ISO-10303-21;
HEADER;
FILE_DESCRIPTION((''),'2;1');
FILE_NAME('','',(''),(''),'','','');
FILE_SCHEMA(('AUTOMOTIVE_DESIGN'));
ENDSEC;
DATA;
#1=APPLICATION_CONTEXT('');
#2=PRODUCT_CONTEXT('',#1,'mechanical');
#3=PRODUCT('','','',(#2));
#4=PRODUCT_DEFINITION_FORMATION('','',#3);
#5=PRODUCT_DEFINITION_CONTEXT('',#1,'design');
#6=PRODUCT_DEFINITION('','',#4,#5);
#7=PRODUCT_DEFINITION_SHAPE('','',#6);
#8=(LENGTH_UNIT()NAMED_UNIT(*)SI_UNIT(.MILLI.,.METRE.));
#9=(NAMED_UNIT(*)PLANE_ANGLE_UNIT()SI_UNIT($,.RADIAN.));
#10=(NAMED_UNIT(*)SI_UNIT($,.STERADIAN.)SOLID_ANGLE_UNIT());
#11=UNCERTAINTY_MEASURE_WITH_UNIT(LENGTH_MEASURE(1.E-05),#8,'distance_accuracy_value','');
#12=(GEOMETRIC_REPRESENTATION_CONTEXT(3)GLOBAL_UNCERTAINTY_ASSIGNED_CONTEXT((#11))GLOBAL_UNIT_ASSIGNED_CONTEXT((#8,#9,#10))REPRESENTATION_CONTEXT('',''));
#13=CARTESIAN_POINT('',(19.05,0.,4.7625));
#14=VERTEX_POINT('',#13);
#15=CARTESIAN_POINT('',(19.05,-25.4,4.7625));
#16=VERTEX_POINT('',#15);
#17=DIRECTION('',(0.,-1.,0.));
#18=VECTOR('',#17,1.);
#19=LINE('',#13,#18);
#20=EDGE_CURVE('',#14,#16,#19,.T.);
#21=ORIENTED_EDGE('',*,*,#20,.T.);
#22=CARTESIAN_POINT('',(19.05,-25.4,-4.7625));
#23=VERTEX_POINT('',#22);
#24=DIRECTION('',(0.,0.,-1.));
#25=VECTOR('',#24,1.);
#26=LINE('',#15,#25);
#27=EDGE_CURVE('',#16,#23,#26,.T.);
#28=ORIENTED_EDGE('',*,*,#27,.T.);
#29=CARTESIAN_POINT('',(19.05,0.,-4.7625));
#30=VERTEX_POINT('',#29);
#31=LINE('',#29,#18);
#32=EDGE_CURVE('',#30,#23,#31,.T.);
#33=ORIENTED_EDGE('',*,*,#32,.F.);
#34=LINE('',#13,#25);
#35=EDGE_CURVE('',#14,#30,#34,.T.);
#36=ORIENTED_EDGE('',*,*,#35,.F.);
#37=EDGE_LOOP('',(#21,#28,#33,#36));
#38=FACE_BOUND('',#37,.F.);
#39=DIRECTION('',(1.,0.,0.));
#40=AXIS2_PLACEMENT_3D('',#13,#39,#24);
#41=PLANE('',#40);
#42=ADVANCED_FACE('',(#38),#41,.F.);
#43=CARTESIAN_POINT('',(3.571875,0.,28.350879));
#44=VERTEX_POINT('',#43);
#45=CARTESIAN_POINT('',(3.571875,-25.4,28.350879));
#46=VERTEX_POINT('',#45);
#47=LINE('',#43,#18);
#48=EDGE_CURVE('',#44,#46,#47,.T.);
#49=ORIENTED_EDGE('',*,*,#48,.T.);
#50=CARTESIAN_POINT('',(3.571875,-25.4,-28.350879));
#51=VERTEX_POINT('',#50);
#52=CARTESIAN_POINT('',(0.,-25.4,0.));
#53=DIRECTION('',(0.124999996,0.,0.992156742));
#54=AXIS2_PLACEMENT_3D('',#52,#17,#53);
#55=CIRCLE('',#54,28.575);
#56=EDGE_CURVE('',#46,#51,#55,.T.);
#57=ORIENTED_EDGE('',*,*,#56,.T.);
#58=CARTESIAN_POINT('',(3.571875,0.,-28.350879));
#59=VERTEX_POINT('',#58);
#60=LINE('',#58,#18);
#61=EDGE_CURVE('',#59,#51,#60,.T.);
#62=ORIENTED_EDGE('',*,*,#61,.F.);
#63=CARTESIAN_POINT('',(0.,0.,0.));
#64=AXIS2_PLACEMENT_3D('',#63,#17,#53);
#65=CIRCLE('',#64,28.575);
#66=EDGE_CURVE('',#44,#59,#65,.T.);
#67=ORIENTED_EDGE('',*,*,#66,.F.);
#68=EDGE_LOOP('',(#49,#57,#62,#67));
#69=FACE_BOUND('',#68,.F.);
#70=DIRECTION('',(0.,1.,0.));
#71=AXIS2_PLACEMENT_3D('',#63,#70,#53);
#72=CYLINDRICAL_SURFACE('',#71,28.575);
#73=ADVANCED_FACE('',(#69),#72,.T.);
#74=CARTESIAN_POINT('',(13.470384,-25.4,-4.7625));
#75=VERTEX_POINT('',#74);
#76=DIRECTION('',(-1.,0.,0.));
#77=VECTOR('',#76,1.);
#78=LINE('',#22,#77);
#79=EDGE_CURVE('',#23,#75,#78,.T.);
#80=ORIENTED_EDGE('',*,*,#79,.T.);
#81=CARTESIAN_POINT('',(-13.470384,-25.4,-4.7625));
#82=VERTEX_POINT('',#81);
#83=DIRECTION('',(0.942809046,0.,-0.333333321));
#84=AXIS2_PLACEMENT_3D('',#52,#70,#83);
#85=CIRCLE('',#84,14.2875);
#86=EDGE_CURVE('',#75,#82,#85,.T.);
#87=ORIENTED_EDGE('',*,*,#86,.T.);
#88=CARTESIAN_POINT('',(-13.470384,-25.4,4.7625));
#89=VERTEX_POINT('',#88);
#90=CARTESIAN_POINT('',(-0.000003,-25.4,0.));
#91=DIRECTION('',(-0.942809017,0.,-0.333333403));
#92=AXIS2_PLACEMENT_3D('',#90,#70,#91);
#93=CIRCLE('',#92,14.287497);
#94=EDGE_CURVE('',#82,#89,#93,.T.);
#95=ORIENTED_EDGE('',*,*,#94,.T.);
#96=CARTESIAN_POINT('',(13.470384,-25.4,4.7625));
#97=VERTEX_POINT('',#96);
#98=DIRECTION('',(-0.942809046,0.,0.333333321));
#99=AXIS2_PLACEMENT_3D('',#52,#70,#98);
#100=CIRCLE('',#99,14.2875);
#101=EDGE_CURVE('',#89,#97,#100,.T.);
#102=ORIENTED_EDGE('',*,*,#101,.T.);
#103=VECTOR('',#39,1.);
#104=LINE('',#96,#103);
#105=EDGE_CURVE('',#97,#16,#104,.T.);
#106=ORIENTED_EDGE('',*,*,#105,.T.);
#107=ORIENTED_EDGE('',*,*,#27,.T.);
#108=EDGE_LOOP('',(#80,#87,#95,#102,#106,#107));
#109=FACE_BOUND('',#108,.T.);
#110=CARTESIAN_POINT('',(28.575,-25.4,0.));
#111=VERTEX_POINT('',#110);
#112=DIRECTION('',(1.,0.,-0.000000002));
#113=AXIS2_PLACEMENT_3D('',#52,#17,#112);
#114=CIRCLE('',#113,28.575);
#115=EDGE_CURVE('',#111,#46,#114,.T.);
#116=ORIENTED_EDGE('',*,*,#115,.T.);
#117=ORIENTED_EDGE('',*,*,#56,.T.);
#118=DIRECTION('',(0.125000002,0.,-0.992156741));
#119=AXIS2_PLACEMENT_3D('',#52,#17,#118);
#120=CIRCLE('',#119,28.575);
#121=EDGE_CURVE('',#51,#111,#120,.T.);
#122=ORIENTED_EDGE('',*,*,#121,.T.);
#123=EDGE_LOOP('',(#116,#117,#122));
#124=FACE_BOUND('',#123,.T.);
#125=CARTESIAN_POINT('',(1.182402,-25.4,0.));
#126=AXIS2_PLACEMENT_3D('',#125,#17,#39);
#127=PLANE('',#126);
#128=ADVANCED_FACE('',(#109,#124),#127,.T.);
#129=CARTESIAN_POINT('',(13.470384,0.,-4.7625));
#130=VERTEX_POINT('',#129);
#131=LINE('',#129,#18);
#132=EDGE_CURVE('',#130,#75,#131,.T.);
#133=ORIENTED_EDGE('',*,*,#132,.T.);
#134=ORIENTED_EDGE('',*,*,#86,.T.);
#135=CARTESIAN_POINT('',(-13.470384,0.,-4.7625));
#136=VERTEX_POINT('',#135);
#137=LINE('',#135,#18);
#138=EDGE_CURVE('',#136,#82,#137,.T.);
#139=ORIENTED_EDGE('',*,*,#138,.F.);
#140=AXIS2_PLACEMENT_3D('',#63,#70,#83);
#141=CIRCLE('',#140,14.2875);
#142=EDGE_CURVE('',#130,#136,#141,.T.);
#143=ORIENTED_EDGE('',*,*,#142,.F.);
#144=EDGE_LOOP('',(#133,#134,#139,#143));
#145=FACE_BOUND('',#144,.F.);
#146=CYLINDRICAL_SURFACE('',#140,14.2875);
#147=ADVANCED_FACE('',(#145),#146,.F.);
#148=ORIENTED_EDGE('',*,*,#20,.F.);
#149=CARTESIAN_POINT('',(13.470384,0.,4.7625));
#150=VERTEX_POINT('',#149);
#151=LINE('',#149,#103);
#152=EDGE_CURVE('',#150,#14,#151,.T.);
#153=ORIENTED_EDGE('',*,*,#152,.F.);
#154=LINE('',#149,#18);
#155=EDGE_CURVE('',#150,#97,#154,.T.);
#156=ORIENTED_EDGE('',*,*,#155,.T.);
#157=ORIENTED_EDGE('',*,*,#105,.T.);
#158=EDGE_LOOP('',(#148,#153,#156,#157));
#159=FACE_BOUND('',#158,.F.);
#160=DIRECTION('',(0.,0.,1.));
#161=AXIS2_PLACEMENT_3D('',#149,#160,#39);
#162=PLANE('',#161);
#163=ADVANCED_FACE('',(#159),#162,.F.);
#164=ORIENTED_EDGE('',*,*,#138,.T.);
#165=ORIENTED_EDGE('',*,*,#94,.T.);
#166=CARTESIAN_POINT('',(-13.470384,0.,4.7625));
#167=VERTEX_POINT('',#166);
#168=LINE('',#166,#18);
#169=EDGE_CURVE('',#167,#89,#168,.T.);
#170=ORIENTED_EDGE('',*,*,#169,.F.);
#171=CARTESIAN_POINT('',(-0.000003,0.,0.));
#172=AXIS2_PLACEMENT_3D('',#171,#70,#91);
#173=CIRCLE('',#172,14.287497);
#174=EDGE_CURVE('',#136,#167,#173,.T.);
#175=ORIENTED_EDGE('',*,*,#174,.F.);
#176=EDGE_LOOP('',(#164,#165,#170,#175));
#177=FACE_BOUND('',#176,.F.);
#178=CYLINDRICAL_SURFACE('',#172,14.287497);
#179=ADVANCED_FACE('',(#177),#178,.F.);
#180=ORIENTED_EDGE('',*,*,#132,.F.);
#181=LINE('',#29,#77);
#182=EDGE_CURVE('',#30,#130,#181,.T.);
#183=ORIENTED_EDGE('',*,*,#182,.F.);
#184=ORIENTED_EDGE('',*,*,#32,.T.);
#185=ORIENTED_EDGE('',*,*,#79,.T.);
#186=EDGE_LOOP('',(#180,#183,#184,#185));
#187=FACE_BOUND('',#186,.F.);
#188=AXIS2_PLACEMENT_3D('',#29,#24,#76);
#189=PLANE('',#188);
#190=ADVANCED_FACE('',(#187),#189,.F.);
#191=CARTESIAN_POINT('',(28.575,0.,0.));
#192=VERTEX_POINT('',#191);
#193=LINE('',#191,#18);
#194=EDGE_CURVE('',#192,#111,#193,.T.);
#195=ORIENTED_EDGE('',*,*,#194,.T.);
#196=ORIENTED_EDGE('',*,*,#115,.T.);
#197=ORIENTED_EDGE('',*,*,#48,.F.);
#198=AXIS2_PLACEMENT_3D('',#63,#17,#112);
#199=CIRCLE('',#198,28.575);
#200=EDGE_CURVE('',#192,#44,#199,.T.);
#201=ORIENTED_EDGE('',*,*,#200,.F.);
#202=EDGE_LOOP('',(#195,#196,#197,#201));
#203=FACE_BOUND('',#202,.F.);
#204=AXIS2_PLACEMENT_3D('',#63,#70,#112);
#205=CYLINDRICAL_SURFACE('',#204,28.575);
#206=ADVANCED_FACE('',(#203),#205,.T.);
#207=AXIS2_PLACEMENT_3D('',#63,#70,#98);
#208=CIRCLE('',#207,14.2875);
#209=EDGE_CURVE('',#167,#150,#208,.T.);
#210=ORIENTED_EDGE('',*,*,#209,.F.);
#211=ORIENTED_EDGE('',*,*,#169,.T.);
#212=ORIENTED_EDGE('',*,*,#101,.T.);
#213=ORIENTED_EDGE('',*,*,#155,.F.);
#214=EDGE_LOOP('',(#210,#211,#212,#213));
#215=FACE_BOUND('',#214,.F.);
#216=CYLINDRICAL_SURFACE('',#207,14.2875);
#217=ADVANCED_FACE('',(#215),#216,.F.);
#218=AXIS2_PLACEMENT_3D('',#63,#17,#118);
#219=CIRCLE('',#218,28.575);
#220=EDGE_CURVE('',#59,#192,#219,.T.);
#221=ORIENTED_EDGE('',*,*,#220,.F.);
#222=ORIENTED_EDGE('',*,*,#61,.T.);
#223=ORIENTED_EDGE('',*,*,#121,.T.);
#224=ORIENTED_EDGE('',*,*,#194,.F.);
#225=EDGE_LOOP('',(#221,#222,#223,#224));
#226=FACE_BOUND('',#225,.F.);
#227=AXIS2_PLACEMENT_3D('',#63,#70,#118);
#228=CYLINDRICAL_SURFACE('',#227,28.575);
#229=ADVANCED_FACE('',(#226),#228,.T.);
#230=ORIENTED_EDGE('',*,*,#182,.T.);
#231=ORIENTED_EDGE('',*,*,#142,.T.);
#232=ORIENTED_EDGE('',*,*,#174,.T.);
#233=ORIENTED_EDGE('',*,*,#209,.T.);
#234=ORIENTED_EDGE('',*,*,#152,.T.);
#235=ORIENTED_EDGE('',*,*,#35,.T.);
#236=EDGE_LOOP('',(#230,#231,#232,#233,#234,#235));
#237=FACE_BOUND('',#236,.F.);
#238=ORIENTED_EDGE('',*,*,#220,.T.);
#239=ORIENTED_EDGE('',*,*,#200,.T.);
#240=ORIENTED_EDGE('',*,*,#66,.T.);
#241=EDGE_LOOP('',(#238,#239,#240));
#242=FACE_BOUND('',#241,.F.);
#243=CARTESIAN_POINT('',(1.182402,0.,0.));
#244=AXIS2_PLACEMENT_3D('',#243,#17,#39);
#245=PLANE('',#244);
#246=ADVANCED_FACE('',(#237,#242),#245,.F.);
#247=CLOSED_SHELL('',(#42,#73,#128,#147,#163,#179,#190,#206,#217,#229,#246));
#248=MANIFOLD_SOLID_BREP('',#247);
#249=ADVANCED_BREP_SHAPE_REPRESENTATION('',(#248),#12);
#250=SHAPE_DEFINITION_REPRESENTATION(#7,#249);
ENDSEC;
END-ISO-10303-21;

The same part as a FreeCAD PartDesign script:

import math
import FreeCAD as App
import Part
import Sketcher

V = App.Vector
Q = App.Units.Quantity

doc = App.newDocument("Part")
body = doc.addObject("PartDesign::Body", "Body")

sketch1 = body.newObject("Sketcher::SketchObject", "Sketch")
sketch1.AttachmentSupport = (doc.getObject("XZ_Plane"), [""])
sketch1.MapMode = "FlatFace"
sketch1.addGeometry(Part.ArcOfCircle(Part.Circle(V(0, 0, 0), V(0, 0, 1), 29), math.radians(-83), math.radians(0)), False)
sketch1.addGeometry(Part.ArcOfCircle(Part.Circle(V(0, 0, 0), V(0, 0, 1), 29), math.radians(0), math.radians(83)), False)
sketch1.addGeometry(Part.ArcOfCircle(Part.Circle(V(0, 0, 0), V(0, 0, 1), 29), math.radians(83), math.radians(277)), False)
sketch1.addGeometry(Part.ArcOfCircle(Part.Circle(V(0, 0, 0), V(0, 0, 1), 14), math.radians(-161), math.radians(-19)), False)
sketch1.addGeometry(Part.ArcOfCircle(Part.Circle(V(0, 0, 0), V(0, 0, 1), 14), math.radians(161), math.radians(199)), False)
sketch1.addGeometry(Part.ArcOfCircle(Part.Circle(V(0, 0, 0), V(0, 0, 1), 14), math.radians(19), math.radians(161)), False)
sketch1.addGeometry(Part.LineSegment(V(13, 5, 0), V(19, 5, 0)), False)
sketch1.addGeometry(Part.LineSegment(V(19, 5, 0), V(19, -5, 0)), False)
sketch1.addGeometry(Part.LineSegment(V(19, -5, 0), V(13, -5, 0)), False)
sketch1.addConstraint(Sketcher.Constraint("Tangent", 0, 2, 1, 1))
sketch1.addConstraint(Sketcher.Constraint("Tangent", 1, 2, 2, 1))
sketch1.addConstraint(Sketcher.Constraint("Tangent", 2, 2, 0, 1))
sketch1.addConstraint(Sketcher.Constraint("Tangent", 3, 1, 4, 2))
sketch1.addConstraint(Sketcher.Constraint("Tangent", 4, 1, 5, 2))
sketch1.addConstraint(Sketcher.Constraint("Coincident", 5, 1, 6, 1))
sketch1.addConstraint(Sketcher.Constraint("Coincident", 6, 2, 7, 1))
sketch1.addConstraint(Sketcher.Constraint("Coincident", 7, 2, 8, 1))
sketch1.addConstraint(Sketcher.Constraint("Coincident", 8, 2, 3, 2))
sketch1.addConstraint(Sketcher.Constraint("Horizontal", 6))
sketch1.addConstraint(Sketcher.Constraint("Vertical", 7))
sketch1.addConstraint(Sketcher.Constraint("Horizontal", 8))
sketch1.addConstraint(Sketcher.Constraint("Coincident", 0, 3, -1, 1))
sketch1.addConstraint(Sketcher.Constraint("Coincident", 3, 3, -1, 1))
sketch1.addConstraint(Sketcher.Constraint("Coincident", 5, 3, -1, 1))
sketch1.addConstraint(Sketcher.Constraint("PointOnObject", 0, 2, -1))
sketch1.addConstraint(Sketcher.Constraint("Horizontal", 4, 1, 5, 1))
sketch1.addConstraint(Sketcher.Constraint("Horizontal", 3, 1, 7, 2))
sketch1.addConstraint(Sketcher.Constraint("Vertical", 1, 2, 2, 2))
sketch1.addConstraint(Sketcher.Constraint("Vertical", 3, 1, 4, 1))
sketch1.addConstraint(Sketcher.Constraint("Radius", 0, Q("1.125 in")))
sketch1.addConstraint(Sketcher.Constraint("Radius", 3, Q("0.5625 in")))
sketch1.addConstraint(Sketcher.Constraint("DistanceY", 7, 2, 7, 1, Q("0.375 in")))
sketch1.addConstraint(Sketcher.Constraint("DistanceX", -1, 1, 6, 2, Q("0.75 in")))
sketch1.addConstraint(Sketcher.Constraint("DistanceX", -1, 1, 1, 2, Q("0.140625 in")))
pad1 = body.newObject("PartDesign::Pad", "Pad")
pad1.Profile = sketch1
pad1.Length = Q("1 in")

doc.recompute()
